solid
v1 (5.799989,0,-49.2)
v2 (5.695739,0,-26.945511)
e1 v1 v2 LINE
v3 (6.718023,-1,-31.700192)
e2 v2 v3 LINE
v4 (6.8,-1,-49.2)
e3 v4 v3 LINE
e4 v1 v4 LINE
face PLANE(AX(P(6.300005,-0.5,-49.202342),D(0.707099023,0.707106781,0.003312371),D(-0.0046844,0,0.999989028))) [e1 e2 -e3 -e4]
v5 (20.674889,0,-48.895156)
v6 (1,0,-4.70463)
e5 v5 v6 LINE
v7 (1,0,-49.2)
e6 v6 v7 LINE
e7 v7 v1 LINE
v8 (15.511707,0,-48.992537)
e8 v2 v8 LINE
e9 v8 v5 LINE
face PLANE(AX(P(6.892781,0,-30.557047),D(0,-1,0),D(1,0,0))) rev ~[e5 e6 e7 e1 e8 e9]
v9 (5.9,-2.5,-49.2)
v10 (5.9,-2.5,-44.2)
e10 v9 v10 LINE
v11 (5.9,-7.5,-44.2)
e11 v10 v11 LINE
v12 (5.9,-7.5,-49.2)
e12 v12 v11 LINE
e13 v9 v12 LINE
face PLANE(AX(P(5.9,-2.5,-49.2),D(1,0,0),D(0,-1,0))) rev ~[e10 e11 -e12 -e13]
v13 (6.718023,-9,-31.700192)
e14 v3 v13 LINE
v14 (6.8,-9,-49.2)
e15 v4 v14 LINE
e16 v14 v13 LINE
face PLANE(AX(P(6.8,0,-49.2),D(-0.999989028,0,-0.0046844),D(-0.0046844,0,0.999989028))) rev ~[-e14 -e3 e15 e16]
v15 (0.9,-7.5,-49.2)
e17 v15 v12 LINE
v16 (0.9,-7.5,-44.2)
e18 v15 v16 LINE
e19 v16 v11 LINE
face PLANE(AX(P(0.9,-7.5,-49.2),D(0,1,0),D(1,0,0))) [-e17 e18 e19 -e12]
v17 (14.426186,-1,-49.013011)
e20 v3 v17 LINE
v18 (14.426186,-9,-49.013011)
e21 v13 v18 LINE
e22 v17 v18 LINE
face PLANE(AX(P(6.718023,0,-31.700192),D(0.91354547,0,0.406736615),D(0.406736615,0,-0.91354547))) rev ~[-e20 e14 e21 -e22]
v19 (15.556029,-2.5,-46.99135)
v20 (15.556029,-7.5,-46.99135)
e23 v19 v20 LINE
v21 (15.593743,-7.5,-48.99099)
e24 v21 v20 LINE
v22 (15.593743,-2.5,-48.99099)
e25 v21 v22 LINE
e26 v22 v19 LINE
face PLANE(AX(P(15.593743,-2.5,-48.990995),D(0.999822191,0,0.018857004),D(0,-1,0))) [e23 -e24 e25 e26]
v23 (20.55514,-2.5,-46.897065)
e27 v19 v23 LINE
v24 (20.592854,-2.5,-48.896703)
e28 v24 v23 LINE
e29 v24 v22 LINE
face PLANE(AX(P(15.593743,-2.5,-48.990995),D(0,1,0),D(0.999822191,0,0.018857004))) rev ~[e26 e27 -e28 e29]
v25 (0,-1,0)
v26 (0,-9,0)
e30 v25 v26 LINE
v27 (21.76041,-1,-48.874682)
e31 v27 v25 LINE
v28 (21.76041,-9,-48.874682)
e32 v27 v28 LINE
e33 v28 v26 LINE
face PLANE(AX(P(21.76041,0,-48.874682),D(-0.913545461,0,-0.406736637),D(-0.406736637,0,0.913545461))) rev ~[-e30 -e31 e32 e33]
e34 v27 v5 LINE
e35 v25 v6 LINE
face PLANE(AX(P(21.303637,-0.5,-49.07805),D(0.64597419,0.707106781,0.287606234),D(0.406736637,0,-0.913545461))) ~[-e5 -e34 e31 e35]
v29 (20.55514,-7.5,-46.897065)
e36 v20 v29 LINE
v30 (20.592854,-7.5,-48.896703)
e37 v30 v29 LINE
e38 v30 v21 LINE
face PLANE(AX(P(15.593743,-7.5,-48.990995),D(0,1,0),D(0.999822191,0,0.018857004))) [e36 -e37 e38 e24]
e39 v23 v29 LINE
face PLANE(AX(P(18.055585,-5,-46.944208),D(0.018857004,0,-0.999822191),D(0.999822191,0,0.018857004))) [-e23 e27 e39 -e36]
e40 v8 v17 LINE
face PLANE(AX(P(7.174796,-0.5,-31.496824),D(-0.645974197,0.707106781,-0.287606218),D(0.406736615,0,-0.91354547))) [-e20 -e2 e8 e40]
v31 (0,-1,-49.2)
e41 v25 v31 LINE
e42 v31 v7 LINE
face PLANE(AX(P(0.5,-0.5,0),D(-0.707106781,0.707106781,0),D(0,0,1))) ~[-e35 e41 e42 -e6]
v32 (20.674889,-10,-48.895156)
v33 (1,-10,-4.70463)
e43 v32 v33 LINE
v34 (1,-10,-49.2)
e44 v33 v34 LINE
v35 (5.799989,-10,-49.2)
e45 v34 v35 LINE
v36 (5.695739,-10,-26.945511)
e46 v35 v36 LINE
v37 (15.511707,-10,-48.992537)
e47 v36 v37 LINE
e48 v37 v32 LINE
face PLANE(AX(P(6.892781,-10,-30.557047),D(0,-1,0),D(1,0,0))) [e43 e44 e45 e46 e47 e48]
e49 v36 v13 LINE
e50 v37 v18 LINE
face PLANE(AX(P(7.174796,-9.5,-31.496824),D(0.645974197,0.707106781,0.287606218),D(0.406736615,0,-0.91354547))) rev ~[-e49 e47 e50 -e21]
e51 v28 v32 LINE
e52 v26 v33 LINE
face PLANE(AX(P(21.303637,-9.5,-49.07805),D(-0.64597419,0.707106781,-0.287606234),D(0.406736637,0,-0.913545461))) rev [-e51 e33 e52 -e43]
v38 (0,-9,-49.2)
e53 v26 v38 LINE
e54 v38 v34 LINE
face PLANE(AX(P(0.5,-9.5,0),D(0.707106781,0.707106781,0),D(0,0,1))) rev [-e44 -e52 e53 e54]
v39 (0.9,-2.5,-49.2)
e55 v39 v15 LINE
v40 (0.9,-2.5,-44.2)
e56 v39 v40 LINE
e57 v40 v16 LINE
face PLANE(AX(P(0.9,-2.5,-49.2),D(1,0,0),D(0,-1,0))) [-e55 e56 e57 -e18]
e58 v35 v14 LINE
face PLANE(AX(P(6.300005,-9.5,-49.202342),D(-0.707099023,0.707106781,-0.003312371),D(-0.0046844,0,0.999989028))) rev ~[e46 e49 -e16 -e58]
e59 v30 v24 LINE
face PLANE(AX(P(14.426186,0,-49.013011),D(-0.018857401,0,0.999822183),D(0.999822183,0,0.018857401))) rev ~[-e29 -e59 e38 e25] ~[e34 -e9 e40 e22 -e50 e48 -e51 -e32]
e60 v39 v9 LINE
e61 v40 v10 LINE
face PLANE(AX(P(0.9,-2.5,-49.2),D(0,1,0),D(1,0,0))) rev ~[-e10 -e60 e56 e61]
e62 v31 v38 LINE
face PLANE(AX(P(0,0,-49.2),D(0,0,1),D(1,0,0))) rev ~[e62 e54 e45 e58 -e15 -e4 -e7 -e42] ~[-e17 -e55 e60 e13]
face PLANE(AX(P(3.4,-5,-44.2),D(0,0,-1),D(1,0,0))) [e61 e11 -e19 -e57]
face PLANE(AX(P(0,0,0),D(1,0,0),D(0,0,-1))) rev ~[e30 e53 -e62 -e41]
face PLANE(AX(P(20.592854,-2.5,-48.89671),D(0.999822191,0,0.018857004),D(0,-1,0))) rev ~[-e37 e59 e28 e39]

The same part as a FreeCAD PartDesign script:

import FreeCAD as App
import Part
import Sketcher

V = App.Vector
Q = App.Units.Quantity


def edges_at(feature, points):
    """Names of the edges that pass closest to the given points."""
    edges = feature.Shape.Edges
    near = lambda p: min(range(len(edges)), key=lambda i: edges[i].distToShape(Part.Vertex(*p))[0])
    return sorted({f"Edge{near(p) + 1}" for p in points})

doc = App.newDocument("Part")
body = doc.addObject("PartDesign::Body", "Body")

sketch1 = doc.addObject("Sketcher::SketchObject", "Sketch")
body.addObject(sketch1)
sketch1.AttachmentSupport = (doc.XZ_Plane, [""])
sketch1.MapMode = "FlatFace"
sketch1.addGeometry([
    Part.LineSegment(V(22, -49, 0), V(0, 0, 0)),
    Part.LineSegment(V(0, 0, 0), V(0, -49, 0)),
    Part.LineSegment(V(0, -49, 0), V(7, -49, 0)),
    Part.LineSegment(V(7, -49, 0), V(7, -32, 0)),
    Part.LineSegment(V(7, -32, 0), V(14, -49, 0)),
    Part.LineSegment(V(14, -49, 0), V(22, -49, 0)),
], False)
sketch1.addConstraint([
    Sketcher.Constraint("Coincident", 0, 2, 1, 1),
    Sketcher.Constraint("Coincident", 1, 2, 2, 1),
    Sketcher.Constraint("Coincident", 2, 2, 3, 1),
    Sketcher.Constraint("Coincident", 3, 2, 4, 1),
    Sketcher.Constraint("Coincident", 4, 2, 5, 1),
    Sketcher.Constraint("Coincident", 5, 2, 0, 1),
    Sketcher.Constraint("Vertical", 1),
    Sketcher.Constraint("Horizontal", 2),
    Sketcher.Constraint("Coincident", 0, 2, -1, 1),
    Sketcher.Constraint("Parallel", 0, 4),
    Sketcher.Constraint("Angle", 0, Q("114 deg")),
    Sketcher.Constraint("DistanceX", 2, 1, 2, 2, Q("6.8 mm")),
    Sketcher.Constraint("DistanceY", 1, 2, 1, 1, Q("49.2 mm")),
    Sketcher.Constraint("Distance", 0, Q("53.5 mm")),
    Sketcher.Constraint("Distance", 3, Q("17.5 mm")),
    Sketcher.Constraint("Distance", 4, Q("18.951239 mm")),
    Sketcher.Constraint("Distance", 5, Q("7.335528 mm")),
])
pad1 = doc.addObject("PartDesign::Pad", "Pad")
body.addObject(pad1)
pad1.Profile = sketch1
pad1.Length = 10

sketch2 = doc.addObject("Sketcher::SketchObject", "Sketch001")
body.addObject(sketch2)
sketch2.AttachmentSupport = (doc.XY_Plane, [""])
sketch2.MapMode = "FlatFace"
sketch2.AttachmentOffset = App.Placement(V(0, 0, -49.2), App.Rotation())
sketch2.addGeometry([
    Part.LineSegment(V(1, -8, 0), V(1, -2, 0)),
    Part.LineSegment(V(1, -2, 0), V(6, -2, 0)),
    Part.LineSegment(V(6, -2, 0), V(6, -8, 0)),
    Part.LineSegment(V(6, -8, 0), V(1, -8, 0)),
], False)
sketch2.addConstraint([
    Sketcher.Constraint("Coincident", 0, 2, 1, 1),
    Sketcher.Constraint("Coincident", 1, 2, 2, 1),
    Sketcher.Constraint("Coincident", 2, 2, 3, 1),
    Sketcher.Constraint("Coincident", 3, 2, 0, 1),
    Sketcher.Constraint("Vertical", 0),
    Sketcher.Constraint("Horizontal", 1),
    Sketcher.Constraint("Vertical", 2),
    Sketcher.Constraint("Horizontal", 3),
    Sketcher.Constraint("Equal", 3, 0),
    Sketcher.Constraint("DistanceX", 1, 1, 1, 2, Q("5 mm")),
    Sketcher.Constraint("DistanceX", -1, 1, 0, 2, Q("0.9 mm")),
    Sketcher.Constraint("DistanceY", 0, 2, -1, 1, Q("2.5 mm")),
])
pocket1 = doc.addObject("PartDesign::Pocket", "Pocket")
body.addObject(pocket1)
pocket1.Profile = sketch2
pocket1.Length = 5
pocket1.Reversed = True

sketch3 = doc.addObject("Sketcher::SketchObject", "Sketch002")
body.addObject(sketch3)
sketch3.Placement = App.Placement(V(0.929221, 0, -49.267573), App.Rotation(V(0.999822191, 0, 0.018857004), V(0, -1, 0), V(0.018857004, 0, -0.999822191), "ZXY"))
sketch3.addGeometry([
    Part.LineSegment(V(15, 8, 0), V(15, 3, 0)),
    Part.LineSegment(V(15, 3, 0), V(20, 3, 0)),
    Part.LineSegment(V(20, 3, 0), V(20, 8, 0)),
    Part.LineSegment(V(20, 8, 0), V(15, 8, 0)),
], False)
sketch3.addConstraint([
    Sketcher.Constraint("Coincident", 0, 2, 1, 1),
    Sketcher.Constraint("Coincident", 1, 2, 2, 1),
    Sketcher.Constraint("Coincident", 2, 2, 3, 1),
    Sketcher.Constraint("Coincident", 3, 2, 0, 1),
    Sketcher.Constraint("Vertical", 0),
    Sketcher.Constraint("Horizontal", 1),
    Sketcher.Constraint("Vertical", 2),
    Sketcher.Constraint("Horizontal", 3),
    Sketcher.Constraint("Equal", 3, 0),
    Sketcher.Constraint("DistanceX", 1, 1, 1, 2, Q("5 mm")),
    Sketcher.Constraint("DistanceY", -1, 1, 0, 2, Q("2.5 mm")),
    Sketcher.Constraint("DistanceX", -1, 1, 0, 2, Q("14.66713 mm")),
])
pocket2 = doc.addObject("PartDesign::Pocket", "Pocket001")
body.addObject(pocket2)
pocket2.Profile = sketch3
pocket2.Length = 2
doc.recompute()

chamfer = doc.addObject("PartDesign::Chamfer", "Chamfer")
body.addObject(chamfer)
chamfer.Base = (pocket2, edges_at(pocket2, [
    (10.88, -10, -24.437),
    (10.572, -10, -40.357),
    (6.759, 0, -40.45),
    (6.759, -10, -40.45),
    (0, -10, -24.6),
    (0, 0, -24.6),
    (10.572, 0, -40.357),
    (10.88, 0, -24.437),
]))
chamfer.Size = 1

doc.recompute()
